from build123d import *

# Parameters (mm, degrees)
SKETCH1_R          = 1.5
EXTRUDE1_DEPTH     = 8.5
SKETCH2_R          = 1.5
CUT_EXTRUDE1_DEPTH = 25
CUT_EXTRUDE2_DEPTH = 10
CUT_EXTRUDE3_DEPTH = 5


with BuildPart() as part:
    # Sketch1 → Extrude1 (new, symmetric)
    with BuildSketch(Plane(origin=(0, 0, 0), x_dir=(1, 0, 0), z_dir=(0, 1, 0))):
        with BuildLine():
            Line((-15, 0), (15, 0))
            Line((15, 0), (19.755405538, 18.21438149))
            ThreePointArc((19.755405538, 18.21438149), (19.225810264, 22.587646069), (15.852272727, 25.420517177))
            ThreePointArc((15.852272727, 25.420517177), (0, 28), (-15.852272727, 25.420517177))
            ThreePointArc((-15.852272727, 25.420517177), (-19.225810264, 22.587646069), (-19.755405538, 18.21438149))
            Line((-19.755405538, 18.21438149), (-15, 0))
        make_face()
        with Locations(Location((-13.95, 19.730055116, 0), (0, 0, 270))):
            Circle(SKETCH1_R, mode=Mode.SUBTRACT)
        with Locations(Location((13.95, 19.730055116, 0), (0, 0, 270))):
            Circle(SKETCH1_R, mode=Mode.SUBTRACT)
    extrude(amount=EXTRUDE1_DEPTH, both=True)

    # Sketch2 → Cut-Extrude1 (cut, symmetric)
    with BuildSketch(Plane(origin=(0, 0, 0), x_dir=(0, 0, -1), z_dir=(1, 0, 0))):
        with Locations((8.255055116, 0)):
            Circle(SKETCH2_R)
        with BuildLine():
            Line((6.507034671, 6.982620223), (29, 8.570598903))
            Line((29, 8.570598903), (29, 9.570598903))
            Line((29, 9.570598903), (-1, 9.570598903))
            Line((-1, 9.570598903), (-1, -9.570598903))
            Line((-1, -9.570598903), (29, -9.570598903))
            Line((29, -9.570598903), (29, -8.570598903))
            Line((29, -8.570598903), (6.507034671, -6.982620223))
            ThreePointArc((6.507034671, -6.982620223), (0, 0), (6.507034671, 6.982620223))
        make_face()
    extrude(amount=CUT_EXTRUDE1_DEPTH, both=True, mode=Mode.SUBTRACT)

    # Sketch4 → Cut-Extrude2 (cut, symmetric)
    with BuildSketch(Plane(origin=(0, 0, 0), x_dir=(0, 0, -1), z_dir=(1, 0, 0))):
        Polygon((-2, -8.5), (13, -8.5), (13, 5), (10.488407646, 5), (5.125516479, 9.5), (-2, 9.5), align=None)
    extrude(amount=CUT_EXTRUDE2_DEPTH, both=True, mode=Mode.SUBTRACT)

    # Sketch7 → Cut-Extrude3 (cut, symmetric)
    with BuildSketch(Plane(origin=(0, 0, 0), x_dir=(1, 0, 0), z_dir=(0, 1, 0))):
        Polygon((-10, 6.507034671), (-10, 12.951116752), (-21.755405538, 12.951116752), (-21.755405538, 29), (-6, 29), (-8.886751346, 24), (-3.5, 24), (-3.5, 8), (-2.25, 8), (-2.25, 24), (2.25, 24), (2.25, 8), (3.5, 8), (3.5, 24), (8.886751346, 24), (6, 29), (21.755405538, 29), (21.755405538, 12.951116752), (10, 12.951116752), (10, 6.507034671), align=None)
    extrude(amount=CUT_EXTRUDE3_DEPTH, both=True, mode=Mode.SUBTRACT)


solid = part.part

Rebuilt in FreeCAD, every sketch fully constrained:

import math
import FreeCAD as App
import Part
import Sketcher
Q = App.Units.Quantity

doc = App.newDocument("Part")
body = doc.addObject("PartDesign::Body", "Body")

# Sketch on XZ plane
sketch1 = doc.addObject("Sketcher::SketchObject", "Sketch")
body.addObject(sketch1)
sketch1.AttachmentSupport = (doc.XZ_Plane, [""])
sketch1.MapMode = "FlatFace"
sketch1.addGeometry(Part.LineSegment(App.Vector(-15, 0, 0), App.Vector(15, 0, 0)), False)
sketch1.addGeometry(Part.LineSegment(App.Vector(15, 0, 0), App.Vector(19.8, -18.2, 0)), False)
sketch1.addGeometry(Part.ArcOfCircle(Part.Circle(App.Vector(13.9, -19.7, 0), App.Vector(0, 0, 1), 6), math.radians(-72), math.radians(15)), False)
sketch1.addGeometry(Part.ArcOfCircle(Part.Circle(App.Vector(0, 22, 0), App.Vector(0, 0, 1), 50), math.radians(-108), math.radians(-72)), False)
sketch1.addGeometry(Part.ArcOfCircle(Part.Circle(App.Vector(-13.9, -19.7, 0), App.Vector(0, 0, 1), 6), math.radians(165), math.radians(252)), False)
sketch1.addGeometry(Part.LineSegment(App.Vector(-19.8, -18.2, 0), App.Vector(-15, 0, 0)), False)
sketch1.addGeometry(Part.Circle(App.Vector(-13.9, -19.7, 0), App.Vector(0, 0, 1), 1.5), False)
sketch1.addGeometry(Part.Circle(App.Vector(13.9, -19.7, 0), App.Vector(0, 0, 1), 1.5), False)
sketch1.addConstraint(Sketcher.Constraint("Coincident", 0, 2, 1, 1))
sketch1.addConstraint(Sketcher.Constraint("Tangent", 1, 2, 2, 2))
sketch1.addConstraint(Sketcher.Constraint("Tangent", 2, 1, 3, 2))
sketch1.addConstraint(Sketcher.Constraint("Tangent", 3, 1, 4, 2))
sketch1.addConstraint(Sketcher.Constraint("Tangent", 4, 1, 5, 1))
sketch1.addConstraint(Sketcher.Constraint("Coincident", 5, 2, 0, 1))
sketch1.addConstraint(Sketcher.Constraint("Horizontal", 0))
sketch1.addConstraint(Sketcher.Constraint("Coincident", 6, 3, 4, 3))
sketch1.addConstraint(Sketcher.Constraint("Coincident", 7, 3, 2, 3))
sketch1.addConstraint(Sketcher.Constraint("Equal", 2, 4))
sketch1.addConstraint(Sketcher.Constraint("Equal", 6, 7))
sketch1.addConstraint(Sketcher.Constraint("Symmetric", 0, 2, 5, 2, -1, 1))
sketch1.addConstraint(Sketcher.Constraint("Symmetric", 2, 3, 4, 3, -2))
sketch1.addConstraint(Sketcher.Constraint("Diameter", 6, 3.0))
sketch1.addConstraint(Sketcher.Constraint("Radius", 2, 6.0))
sketch1.addConstraint(Sketcher.Constraint("Radius", 3, 50.0))
sketch1.addConstraint(Sketcher.Constraint("DistanceX", 0, 1, 0, 2, 30.0))
sketch1.addConstraint(Sketcher.Constraint("DistanceY", -1, 1, 3, 3, 22.0))
sketch1.addConstraint(Sketcher.Constraint("DistanceX", 4, 3, 2, 3, 27.9))
pad1 = doc.addObject("PartDesign::Pad", "Pad")
body.addObject(pad1)
pad1.Profile = sketch1
pad1.Length = 17
pad1.Midplane = True

# Sketch on YZ plane
sketch2 = doc.addObject("Sketcher::SketchObject", "Sketch001")
body.addObject(sketch2)
sketch2.AttachmentSupport = (doc.YZ_Plane, [""])
sketch2.MapMode = "FlatFace"
sketch2.addGeometry(Part.Circle(App.Vector(0, -8.3, 0), App.Vector(0, 0, 1), 1.5), False)
sketch2.addGeometry(Part.LineSegment(App.Vector(7, -6.5, 0), App.Vector(8.6, -29, 0)), False)
sketch2.addGeometry(Part.LineSegment(App.Vector(8.6, -29, 0), App.Vector(9.6, -29, 0)), False)
sketch2.addGeometry(Part.LineSegment(App.Vector(9.6, -29, 0), App.Vector(9.6, 1, 0)), False)
sketch2.addGeometry(Part.LineSegment(App.Vector(9.6, 1, 0), App.Vector(-9.6, 1, 0)), False)
sketch2.addGeometry(Part.LineSegment(App.Vector(-9.6, 1, 0), App.Vector(-9.6, -29, 0)), False)
sketch2.addGeometry(Part.LineSegment(App.Vector(-9.6, -29, 0), App.Vector(-8.6, -29, 0)), False)
sketch2.addGeometry(Part.LineSegment(App.Vector(-8.6, -29, 0), App.Vector(-7, -6.5, 0)), False)
sketch2.addGeometry(Part.ArcOfCircle(Part.Circle(App.Vector(0, -7, 0), App.Vector(0, 0, 1), 7), math.radians(4), math.radians(176)), False)
sketch2.addConstraint(Sketcher.Constraint("Coincident", 1, 2, 2, 1))
sketch2.addConstraint(Sketcher.Constraint("Coincident", 2, 2, 3, 1))
sketch2.addConstraint(Sketcher.Constraint("Coincident", 3, 2, 4, 1))
sketch2.addConstraint(Sketcher.Constraint("Coincident", 4, 2, 5, 1))
sketch2.addConstraint(Sketcher.Constraint("Coincident", 5, 2, 6, 1))
sketch2.addConstraint(Sketcher.Constraint("Coincident", 6, 2, 7, 1))
sketch2.addConstraint(Sketcher.Constraint("Tangent", 7, 2, 8, 2))
sketch2.addConstraint(Sketcher.Constraint("Tangent", 8, 1, 1, 1))
sketch2.addConstraint(Sketcher.Constraint("Horizontal", 2))
sketch2.addConstraint(Sketcher.Constraint("Vertical", 3))
sketch2.addConstraint(Sketcher.Constraint("Horizontal", 4))
sketch2.addConstraint(Sketcher.Constraint("Vertical", 5))
sketch2.addConstraint(Sketcher.Constraint("Horizontal", 6))
sketch2.addConstraint(Sketcher.Constraint("Symmetric", 2, 2, 5, 2, -2))
sketch2.addConstraint(Sketcher.Constraint("Symmetric", 7, 2, 8, 1, -2))
sketch2.addConstraint(Sketcher.Constraint("PointOnObject", 0, 3, -2))
sketch2.addConstraint(Sketcher.Constraint("Diameter", 0, 3.0))
sketch2.addConstraint(Sketcher.Constraint("Radius", 8, 7.0))
sketch2.addConstraint(Sketcher.Constraint("DistanceX", 2, 1, 2, 2, 1.0))
sketch2.addConstraint(Sketcher.Constraint("DistanceY", 3, 1, 3, 2, 30.0))
sketch2.addConstraint(Sketcher.Constraint("DistanceY", 8, 3, -1, 1, 7.0))
sketch2.addConstraint(Sketcher.Constraint("DistanceY", 1, 2, -1, 1, 29.0))
sketch2.addConstraint(Sketcher.Constraint("DistanceX", -1, 1, 1, 2, 8.570599))
sketch2.addConstraint(Sketcher.Constraint("DistanceY", 0, 3, 7, 2, 1.74802))
pocket1 = doc.addObject("PartDesign::Pocket", "Pocket")
body.addObject(pocket1)
pocket1.Profile = sketch2
pocket1.Length = 50
pocket1.Midplane = True

# Sketch on YZ plane
sketch3 = doc.addObject("Sketcher::SketchObject", "Sketch002")
body.addObject(sketch3)
sketch3.AttachmentSupport = (doc.YZ_Plane, [""])
sketch3.MapMode = "FlatFace"
sketch3.addGeometry(Part.LineSegment(App.Vector(-8.5, 2, 0), App.Vector(-8.5, -13, 0)), False)
sketch3.addGeometry(Part.LineSegment(App.Vector(-8.5, -13, 0), App.Vector(5, -13, 0)), False)
sketch3.addGeometry(Part.LineSegment(App.Vector(5, -13, 0), App.Vector(5, -10.5, 0)), False)
sketch3.addGeometry(Part.LineSegment(App.Vector(5, -10.5, 0), App.Vector(9.5, -5.1, 0)), False)
sketch3.addGeometry(Part.LineSegment(App.Vector(9.5, -5.1, 0), App.Vector(9.5, 2, 0)), False)
sketch3.addGeometry(Part.LineSegment(App.Vector(9.5, 2, 0), App.Vector(-8.5, 2, 0)), False)
sketch3.addConstraint(Sketcher.Constraint("Coincident", 0, 2, 1, 1))
sketch3.addConstraint(Sketcher.Constraint("Coincident", 1, 2, 2, 1))
sketch3.addConstraint(Sketcher.Constraint("Coincident", 2, 2, 3, 1))
sketch3.addConstraint(Sketcher.Constraint("Coincident", 3, 2, 4, 1))
sketch3.addConstraint(Sketcher.Constraint("Coincident", 4, 2, 5, 1))
sketch3.addConstraint(Sketcher.Constraint("Coincident", 5, 2, 0, 1))
sketch3.addConstraint(Sketcher.Constraint("Vertical", 0))
sketch3.addConstraint(Sketcher.Constraint("Horizontal", 1))
sketch3.addConstraint(Sketcher.Constraint("Vertical", 2))
sketch3.addConstraint(Sketcher.Constraint("Vertical", 4))
sketch3.addConstraint(Sketcher.Constraint("Horizontal", 5))
sketch3.addConstraint(Sketcher.Constraint("DistanceX", 5, 2, 5, 1, 18.0))
sketch3.addConstraint(Sketcher.Constraint("DistanceY", 0, 2, 0, 1, 15.0))
sketch3.addConstraint(Sketcher.Constraint("Angle", 3, Q("50 deg")))
sketch3.addConstraint(Sketcher.Constraint("DistanceX", 1, 1, 1, 2, 13.5))
sketch3.addConstraint(Sketcher.Constraint("DistanceY", 0, 2, -1, 1, 13.0))
sketch3.addConstraint(Sketcher.Constraint("DistanceX", -1, 1, 1, 2, 5.0))
sketch3.addConstraint(Sketcher.Constraint("DistanceY", 2, 1, 2, 2, 2.511592))
pocket2 = doc.addObject("PartDesign::Pocket", "Pocket001")
body.addObject(pocket2)
pocket2.Profile = sketch3
pocket2.Length = 20
pocket2.Midplane = True

# Sketch on XZ plane
sketch4 = doc.addObject("Sketcher::SketchObject", "Sketch003")
body.addObject(sketch4)
sketch4.AttachmentSupport = (doc.XZ_Plane, [""])
sketch4.MapMode = "FlatFace"
sketch4.addGeometry(Part.LineSegment(App.Vector(-10, -13, 0), App.Vector(-10, -6.5, 0)), False)
sketch4.addGeometry(Part.LineSegment(App.Vector(-10, -6.5, 0), App.Vector(10, -6.5, 0)), False)
sketch4.addGeometry(Part.LineSegment(App.Vector(10, -6.5, 0), App.Vector(10, -13, 0)), False)
sketch4.addGeometry(Part.LineSegment(App.Vector(10, -13, 0), App.Vector(21.8, -13, 0)), False)
sketch4.addGeometry(Part.LineSegment(App.Vector(21.8, -13, 0), App.Vector(21.8, -29, 0)), False)
sketch4.addGeometry(Part.LineSegment(App.Vector(21.8, -29, 0), App.Vector(6, -29, 0)), False)
sketch4.addGeometry(Part.LineSegment(App.Vector(6, -29, 0), App.Vector(8.9, -24, 0)), False)
sketch4.addGeometry(Part.LineSegment(App.Vector(8.9, -24, 0), App.Vector(3.5, -24, 0)), False)
sketch4.addGeometry(Part.LineSegment(App.Vector(3.5, -24, 0), App.Vector(3.5, -8, 0)), False)
sketch4.addGeometry(Part.LineSegment(App.Vector(3.5, -8, 0), App.Vector(2.2, -8, 0)), False)
sketch4.addGeometry(Part.LineSegment(App.Vector(2.2, -8, 0), App.Vector(2.2, -24, 0)), False)
sketch4.addGeometry(Part.LineSegment(App.Vector(2.2, -24, 0), App.Vector(-2.2, -24, 0)), False)
sketch4.addGeometry(Part.LineSegment(App.Vector(-2.2, -24, 0), App.Vector(-2.2, -8, 0)), False)
sketch4.addGeometry(Part.LineSegment(App.Vector(-2.2, -8, 0), App.Vector(-3.5, -8, 0)), False)
sketch4.addGeometry(Part.LineSegment(App.Vector(-3.5, -8, 0), App.Vector(-3.5, -24, 0)), False)
sketch4.addGeometry(Part.LineSegment(App.Vector(-3.5, -24, 0), App.Vector(-8.9, -24, 0)), False)
sketch4.addGeometry(Part.LineSegment(App.Vector(-8.9, -24, 0), App.Vector(-6, -29, 0)), False)
sketch4.addGeometry(Part.LineSegment(App.Vector(-6, -29, 0), App.Vector(-21.8, -29, 0)), False)
sketch4.addGeometry(Part.LineSegment(App.Vector(-21.8, -29, 0), App.Vector(-21.8, -13, 0)), False)
sketch4.addGeometry(Part.LineSegment(App.Vector(-21.8, -13, 0), App.Vector(-10, -13, 0)), False)
sketch4.addConstraint(Sketcher.Constraint("Coincident", 0, 2, 1, 1))
sketch4.addConstraint(Sketcher.Constraint("Coincident", 1, 2, 2, 1))
sketch4.addConstraint(Sketcher.Constraint("Coincident", 2, 2, 3, 1))
sketch4.addConstraint(Sketcher.Constraint("Coincident", 3, 2, 4, 1))
sketch4.addConstraint(Sketcher.Constraint("Coincident", 4, 2, 5, 1))
sketch4.addConstraint(Sketcher.Constraint("Coincident", 5, 2, 6, 1))
sketch4.addConstraint(Sketcher.Constraint("Coincident", 6, 2, 7, 1))
sketch4.addConstraint(Sketcher.Constraint("Coincident", 7, 2, 8, 1))
sketch4.addConstraint(Sketcher.Constraint("Coincident", 8, 2, 9, 1))
sketch4.addConstraint(Sketcher.Constraint("Coincident", 9, 2, 10, 1))
sketch4.addConstraint(Sketcher.Constraint("Coincident", 10, 2, 11, 1))
sketch4.addConstraint(Sketcher.Constraint("Coincident", 11, 2, 12, 1))
sketch4.addConstraint(Sketcher.Constraint("Coincident", 12, 2, 13, 1))
sketch4.addConstraint(Sketcher.Constraint("Coincident", 13, 2, 14, 1))
sketch4.addConstraint(Sketcher.Constraint("Coincident", 14, 2, 15, 1))
sketch4.addConstraint(Sketcher.Constraint("Coincident", 15, 2, 16, 1))
sketch4.addConstraint(Sketcher.Constraint("Coincident", 16, 2, 17, 1))
sketch4.addConstraint(Sketcher.Constraint("Coincident", 17, 2, 18, 1))
sketch4.addConstraint(Sketcher.Constraint("Coincident", 18, 2, 19, 1))
sketch4.addConstraint(Sketcher.Constraint("Coincident", 19, 2, 0, 1))
sketch4.addConstraint(Sketcher.Constraint("Vertical", 0))
sketch4.addConstraint(Sketcher.Constraint("Horizontal", 1))
sketch4.addConstraint(Sketcher.Constraint("Vertical", 2))
sketch4.addConstraint(Sketcher.Constraint("Horizontal", 3))
sketch4.addConstraint(Sketcher.Constraint("Vertical", 4))
sketch4.addConstraint(Sketcher.Constraint("Horizontal", 5))
sketch4.addConstraint(Sketcher.Constraint("Horizontal", 7))
sketch4.addConstraint(Sketcher.Constraint("Vertical", 8))
sketch4.addConstraint(Sketcher.Constraint("Horizontal", 9))
sketch4.addConstraint(Sketcher.Constraint("Vertical", 10))
sketch4.addConstraint(Sketcher.Constraint("Horizontal", 11))
sketch4.addConstraint(Sketcher.Constraint("Vertical", 12))
sketch4.addConstraint(Sketcher.Constraint("Horizontal", 13))
sketch4.addConstraint(Sketcher.Constraint("Vertical", 14))
sketch4.addConstraint(Sketcher.Constraint("Horizontal", 15))
sketch4.addConstraint(Sketcher.Constraint("Horizontal", 17))
sketch4.addConstraint(Sketcher.Constraint("Vertical", 18))
sketch4.addConstraint(Sketcher.Constraint("Horizontal", 19))
sketch4.addConstraint(Sketcher.Constraint("Symmetric", 9, 2, 12, 2, -2))
sketch4.addConstraint(Sketcher.Constraint("Symmetric", 7, 2, 14, 2, -2))
sketch4.addConstraint(Sketcher.Constraint("Symmetric", 5, 2, 16, 2, -2))
sketch4.addConstraint(Sketcher.Constraint("Symmetric", 3, 2, 18, 2, -2))
sketch4.addConstraint(Sketcher.Constraint("Horizontal", 7, 2, 10, 2))
sketch4.addConstraint(Sketcher.Constraint("Equal", 7, 15))
sketch4.addConstraint(Sketcher.Constraint("Equal", 3, 19))
sketch4.addConstraint(Sketcher.Constraint("DistanceX", 1, 1, 1, 2, 20.0))
sketch4.addConstraint(Sketcher.Constraint("DistanceY", 8, 1, 8, 2, 16.0))
sketch4.addConstraint(Sketcher.Constraint("Angle", 6, Q("60 deg")))
sketch4.addConstraint(Sketcher.Constraint("DistanceX", 11, 2, 11, 1, 4.5))
sketch4.addConstraint(Sketcher.Constraint("DistanceY", 4, 2, -1, 1, 29.0))
sketch4.addConstraint(Sketcher.Constraint("DistanceX", -1, 1, 5, 2, 6.0))
sketch4.addConstraint(Sketcher.Constraint("DistanceY", 6, 2, -1, 1, 24.0))
sketch4.addConstraint(Sketcher.Constraint("DistanceX", 13, 2, 8, 2, 7.0))
sketch4.addConstraint(Sketcher.Constraint("DistanceX", 3, 1, 3, 2, 11.755406))
sketch4.addConstraint(Sketcher.Constraint("DistanceY", 0, 1, 0, 2, 6.444082))
sketch4.addConstraint(Sketcher.Constraint("DistanceY", 4, 2, 4, 1, 16.048883))
pocket3 = doc.addObject("PartDesign::Pocket", "Pocket002")
body.addObject(pocket3)
pocket3.Profile = sketch4
pocket3.Length = 10
pocket3.Midplane = True

doc.recompute()
